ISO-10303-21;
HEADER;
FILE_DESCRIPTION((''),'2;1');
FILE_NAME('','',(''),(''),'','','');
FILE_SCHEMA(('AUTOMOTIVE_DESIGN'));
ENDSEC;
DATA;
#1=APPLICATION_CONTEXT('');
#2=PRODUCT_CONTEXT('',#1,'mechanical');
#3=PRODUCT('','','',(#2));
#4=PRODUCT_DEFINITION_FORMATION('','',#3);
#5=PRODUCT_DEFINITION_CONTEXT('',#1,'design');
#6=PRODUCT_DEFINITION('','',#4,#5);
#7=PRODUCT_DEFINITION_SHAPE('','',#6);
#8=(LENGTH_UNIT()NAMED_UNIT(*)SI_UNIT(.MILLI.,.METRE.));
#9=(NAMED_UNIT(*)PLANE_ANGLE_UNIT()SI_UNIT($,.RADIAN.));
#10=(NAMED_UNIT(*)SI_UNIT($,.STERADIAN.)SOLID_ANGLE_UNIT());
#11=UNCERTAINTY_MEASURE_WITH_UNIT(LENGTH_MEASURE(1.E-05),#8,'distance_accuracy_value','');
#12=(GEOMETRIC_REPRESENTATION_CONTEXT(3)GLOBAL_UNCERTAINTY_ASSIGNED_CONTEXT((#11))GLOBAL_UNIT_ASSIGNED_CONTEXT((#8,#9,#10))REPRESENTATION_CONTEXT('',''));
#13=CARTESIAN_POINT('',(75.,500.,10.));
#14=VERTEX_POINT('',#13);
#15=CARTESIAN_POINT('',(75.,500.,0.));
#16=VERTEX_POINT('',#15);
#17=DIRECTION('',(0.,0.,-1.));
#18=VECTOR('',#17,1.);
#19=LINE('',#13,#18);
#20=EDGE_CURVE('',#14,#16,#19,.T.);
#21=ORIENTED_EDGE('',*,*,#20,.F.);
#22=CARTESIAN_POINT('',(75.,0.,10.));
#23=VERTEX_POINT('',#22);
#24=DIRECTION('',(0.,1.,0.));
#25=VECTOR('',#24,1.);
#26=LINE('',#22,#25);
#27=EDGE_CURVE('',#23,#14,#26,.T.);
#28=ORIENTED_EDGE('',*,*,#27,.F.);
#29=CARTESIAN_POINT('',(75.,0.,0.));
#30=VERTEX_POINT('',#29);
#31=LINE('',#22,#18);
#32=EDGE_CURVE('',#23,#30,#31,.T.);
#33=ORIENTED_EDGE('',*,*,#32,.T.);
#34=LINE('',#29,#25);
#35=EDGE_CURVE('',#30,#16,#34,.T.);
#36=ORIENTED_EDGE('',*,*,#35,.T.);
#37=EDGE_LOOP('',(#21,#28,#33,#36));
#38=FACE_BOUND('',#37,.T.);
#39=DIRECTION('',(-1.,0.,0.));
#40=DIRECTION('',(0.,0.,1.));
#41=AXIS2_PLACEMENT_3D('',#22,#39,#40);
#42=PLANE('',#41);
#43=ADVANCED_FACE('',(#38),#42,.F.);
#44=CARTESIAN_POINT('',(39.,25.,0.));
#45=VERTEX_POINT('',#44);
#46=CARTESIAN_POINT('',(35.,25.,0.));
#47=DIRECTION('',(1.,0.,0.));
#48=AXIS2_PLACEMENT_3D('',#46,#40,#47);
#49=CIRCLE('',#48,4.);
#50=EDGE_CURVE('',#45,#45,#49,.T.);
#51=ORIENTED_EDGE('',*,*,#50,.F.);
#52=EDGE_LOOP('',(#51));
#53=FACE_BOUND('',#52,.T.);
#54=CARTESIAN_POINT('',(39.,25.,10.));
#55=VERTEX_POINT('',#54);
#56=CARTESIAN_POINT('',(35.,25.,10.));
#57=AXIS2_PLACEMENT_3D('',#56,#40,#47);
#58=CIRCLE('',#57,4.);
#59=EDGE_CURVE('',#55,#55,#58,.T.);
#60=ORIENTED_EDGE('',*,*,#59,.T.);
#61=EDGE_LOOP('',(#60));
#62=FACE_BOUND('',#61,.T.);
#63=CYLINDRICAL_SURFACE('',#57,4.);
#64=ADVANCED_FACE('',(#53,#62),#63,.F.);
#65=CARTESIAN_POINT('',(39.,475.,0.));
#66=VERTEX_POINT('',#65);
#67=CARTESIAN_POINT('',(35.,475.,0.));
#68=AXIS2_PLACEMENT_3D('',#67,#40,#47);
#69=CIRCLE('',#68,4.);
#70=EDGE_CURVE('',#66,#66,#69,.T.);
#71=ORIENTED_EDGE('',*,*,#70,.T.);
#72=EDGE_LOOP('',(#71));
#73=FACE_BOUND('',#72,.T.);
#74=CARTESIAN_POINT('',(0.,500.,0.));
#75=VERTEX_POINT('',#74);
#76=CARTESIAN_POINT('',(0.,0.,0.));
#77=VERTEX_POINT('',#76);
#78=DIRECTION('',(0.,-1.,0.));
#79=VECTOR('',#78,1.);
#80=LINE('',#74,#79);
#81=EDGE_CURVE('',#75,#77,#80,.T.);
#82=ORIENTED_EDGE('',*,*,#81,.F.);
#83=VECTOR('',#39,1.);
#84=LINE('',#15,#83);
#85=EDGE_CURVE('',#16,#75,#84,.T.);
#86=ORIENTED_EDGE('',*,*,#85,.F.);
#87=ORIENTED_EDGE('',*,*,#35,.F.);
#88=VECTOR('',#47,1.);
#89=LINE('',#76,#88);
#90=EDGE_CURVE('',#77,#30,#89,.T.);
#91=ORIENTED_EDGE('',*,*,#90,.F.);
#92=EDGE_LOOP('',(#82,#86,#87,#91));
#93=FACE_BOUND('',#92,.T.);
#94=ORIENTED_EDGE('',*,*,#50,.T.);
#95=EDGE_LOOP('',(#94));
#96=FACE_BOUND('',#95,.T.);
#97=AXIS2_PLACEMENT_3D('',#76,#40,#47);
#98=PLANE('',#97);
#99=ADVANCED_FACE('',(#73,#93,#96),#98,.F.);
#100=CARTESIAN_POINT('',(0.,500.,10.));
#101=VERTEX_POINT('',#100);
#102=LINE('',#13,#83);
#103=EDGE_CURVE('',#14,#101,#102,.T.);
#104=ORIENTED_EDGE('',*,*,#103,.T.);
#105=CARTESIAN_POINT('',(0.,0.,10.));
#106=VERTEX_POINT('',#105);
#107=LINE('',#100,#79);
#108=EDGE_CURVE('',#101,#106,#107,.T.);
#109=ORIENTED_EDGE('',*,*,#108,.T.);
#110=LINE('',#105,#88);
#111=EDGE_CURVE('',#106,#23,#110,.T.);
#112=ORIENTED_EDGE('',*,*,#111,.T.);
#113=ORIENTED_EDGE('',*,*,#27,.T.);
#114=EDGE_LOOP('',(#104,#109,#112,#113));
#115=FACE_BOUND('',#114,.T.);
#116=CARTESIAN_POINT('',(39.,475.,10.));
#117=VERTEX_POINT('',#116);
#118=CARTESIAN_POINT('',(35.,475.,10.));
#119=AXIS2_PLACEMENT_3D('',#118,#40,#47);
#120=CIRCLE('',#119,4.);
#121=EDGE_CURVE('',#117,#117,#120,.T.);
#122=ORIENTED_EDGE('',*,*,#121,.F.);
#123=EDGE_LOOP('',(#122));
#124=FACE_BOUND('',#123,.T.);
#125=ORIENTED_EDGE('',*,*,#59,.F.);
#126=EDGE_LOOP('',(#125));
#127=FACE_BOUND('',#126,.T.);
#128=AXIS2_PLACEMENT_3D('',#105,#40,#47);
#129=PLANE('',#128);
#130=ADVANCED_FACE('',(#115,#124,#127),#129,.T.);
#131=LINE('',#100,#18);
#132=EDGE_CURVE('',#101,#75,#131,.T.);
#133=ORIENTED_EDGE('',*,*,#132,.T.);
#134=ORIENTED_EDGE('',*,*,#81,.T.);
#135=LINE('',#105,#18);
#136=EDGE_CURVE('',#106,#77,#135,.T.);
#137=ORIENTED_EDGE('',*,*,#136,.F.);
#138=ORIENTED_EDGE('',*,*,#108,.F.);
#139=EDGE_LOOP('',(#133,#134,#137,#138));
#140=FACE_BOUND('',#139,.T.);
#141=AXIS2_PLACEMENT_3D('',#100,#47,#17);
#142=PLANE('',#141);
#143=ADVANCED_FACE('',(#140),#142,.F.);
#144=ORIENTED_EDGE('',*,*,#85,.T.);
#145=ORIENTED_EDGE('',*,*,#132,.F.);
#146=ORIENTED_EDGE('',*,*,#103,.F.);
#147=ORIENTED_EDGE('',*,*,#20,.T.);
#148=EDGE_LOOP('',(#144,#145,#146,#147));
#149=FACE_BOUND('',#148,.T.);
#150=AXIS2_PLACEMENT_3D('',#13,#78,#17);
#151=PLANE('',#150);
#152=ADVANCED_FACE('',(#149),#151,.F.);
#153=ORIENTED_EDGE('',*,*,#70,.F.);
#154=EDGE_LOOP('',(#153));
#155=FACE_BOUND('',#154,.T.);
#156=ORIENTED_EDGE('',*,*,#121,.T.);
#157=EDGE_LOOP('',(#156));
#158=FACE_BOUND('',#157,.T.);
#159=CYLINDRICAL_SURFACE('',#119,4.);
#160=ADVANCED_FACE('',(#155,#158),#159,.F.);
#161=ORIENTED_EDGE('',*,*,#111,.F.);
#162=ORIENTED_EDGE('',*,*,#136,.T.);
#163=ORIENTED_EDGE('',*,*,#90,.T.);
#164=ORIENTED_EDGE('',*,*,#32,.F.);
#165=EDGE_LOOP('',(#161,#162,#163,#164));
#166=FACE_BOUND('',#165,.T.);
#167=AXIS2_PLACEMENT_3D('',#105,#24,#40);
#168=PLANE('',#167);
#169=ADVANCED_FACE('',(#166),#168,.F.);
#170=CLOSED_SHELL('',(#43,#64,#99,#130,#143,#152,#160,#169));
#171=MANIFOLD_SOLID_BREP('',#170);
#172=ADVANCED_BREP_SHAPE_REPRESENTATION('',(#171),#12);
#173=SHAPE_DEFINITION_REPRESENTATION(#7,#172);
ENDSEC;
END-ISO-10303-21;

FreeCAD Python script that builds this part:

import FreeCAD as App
import Part
import Sketcher
from FreeCAD import Vector


def add_polygon(sketch, points):
    """Adds a closed chain of lines whose ends are joined by coincident constraints."""
    first, n = sketch.GeometryCount, len(points)
    for a, b in zip(points, points[1:] + points[:1]):
        sketch.addGeometry(Part.LineSegment(App.Vector(*a, 0), App.Vector(*b, 0)), False)
    for i in range(n):
        sketch.addConstraint(Sketcher.Constraint("Coincident", first + i, 2, first + (i + 1) % n, 1))

doc = App.newDocument("Part")
body = doc.addObject("PartDesign::Body", "Body")

sketch1 = body.newObject("Sketcher::SketchObject", "Sketch")
sketch1.AttachmentSupport = (doc.getObject("XY_Plane"), [""])
sketch1.MapMode = "FlatFace"
add_polygon(sketch1, [(0, 500), (0, 0), (75, 0), (75, 500)])
sketch1.addConstraint(Sketcher.Constraint("Vertical", 0))
sketch1.addConstraint(Sketcher.Constraint("Horizontal", 1))
sketch1.addConstraint(Sketcher.Constraint("Vertical", 2))
sketch1.addConstraint(Sketcher.Constraint("Horizontal", 3))
sketch1.addConstraint(Sketcher.Constraint("Coincident", 0, 2, -1, 1))
sketch1.addConstraint(Sketcher.Constraint("DistanceX", 1, 1, 1, 2, 75.0))
sketch1.addConstraint(Sketcher.Constraint("DistanceY", 0, 2, 0, 1, 500.0))
pad1 = body.newObject("PartDesign::Pad", "Pad")
pad1.Profile = sketch1
pad1.Length = 10

sketch2 = body.newObject("Sketcher::SketchObject", "Sketch001")
sketch2.AttachmentSupport = (doc.getObject("XY_Plane"), [""])
sketch2.MapMode = "FlatFace"
sketch2.AttachmentOffset = App.Placement(Vector(0, 0, 10), App.Rotation())
sketch2.addGeometry(Part.Circle(Vector(35, 25, 0), Vector(0, 0, 1), 4), False)
sketch2.addGeometry(Part.Circle(Vector(35, 475, 0), Vector(0, 0, 1), 4), False)
sketch2.addConstraint(Sketcher.Constraint("Equal", 0, 1))
sketch2.addConstraint(Sketcher.Constraint("Vertical", 0, 3, 1, 3))
sketch2.addConstraint(Sketcher.Constraint("Diameter", 0, 8.0))
sketch2.addConstraint(Sketcher.Constraint("DistanceX", -1, 1, 0, 3, 35.0))
sketch2.addConstraint(Sketcher.Constraint("DistanceY", -1, 1, 0, 3, 25.0))
sketch2.addConstraint(Sketcher.Constraint("DistanceY", -1, 1, 1, 3, 475.0))
doc.recompute()
hole = body.newObject("PartDesign::Hole", "Hole")
hole.Profile = sketch2
hole.ThreadType = "None"
hole.Diameter = 8
hole.DepthType = "ThroughAll"

doc.recompute()
